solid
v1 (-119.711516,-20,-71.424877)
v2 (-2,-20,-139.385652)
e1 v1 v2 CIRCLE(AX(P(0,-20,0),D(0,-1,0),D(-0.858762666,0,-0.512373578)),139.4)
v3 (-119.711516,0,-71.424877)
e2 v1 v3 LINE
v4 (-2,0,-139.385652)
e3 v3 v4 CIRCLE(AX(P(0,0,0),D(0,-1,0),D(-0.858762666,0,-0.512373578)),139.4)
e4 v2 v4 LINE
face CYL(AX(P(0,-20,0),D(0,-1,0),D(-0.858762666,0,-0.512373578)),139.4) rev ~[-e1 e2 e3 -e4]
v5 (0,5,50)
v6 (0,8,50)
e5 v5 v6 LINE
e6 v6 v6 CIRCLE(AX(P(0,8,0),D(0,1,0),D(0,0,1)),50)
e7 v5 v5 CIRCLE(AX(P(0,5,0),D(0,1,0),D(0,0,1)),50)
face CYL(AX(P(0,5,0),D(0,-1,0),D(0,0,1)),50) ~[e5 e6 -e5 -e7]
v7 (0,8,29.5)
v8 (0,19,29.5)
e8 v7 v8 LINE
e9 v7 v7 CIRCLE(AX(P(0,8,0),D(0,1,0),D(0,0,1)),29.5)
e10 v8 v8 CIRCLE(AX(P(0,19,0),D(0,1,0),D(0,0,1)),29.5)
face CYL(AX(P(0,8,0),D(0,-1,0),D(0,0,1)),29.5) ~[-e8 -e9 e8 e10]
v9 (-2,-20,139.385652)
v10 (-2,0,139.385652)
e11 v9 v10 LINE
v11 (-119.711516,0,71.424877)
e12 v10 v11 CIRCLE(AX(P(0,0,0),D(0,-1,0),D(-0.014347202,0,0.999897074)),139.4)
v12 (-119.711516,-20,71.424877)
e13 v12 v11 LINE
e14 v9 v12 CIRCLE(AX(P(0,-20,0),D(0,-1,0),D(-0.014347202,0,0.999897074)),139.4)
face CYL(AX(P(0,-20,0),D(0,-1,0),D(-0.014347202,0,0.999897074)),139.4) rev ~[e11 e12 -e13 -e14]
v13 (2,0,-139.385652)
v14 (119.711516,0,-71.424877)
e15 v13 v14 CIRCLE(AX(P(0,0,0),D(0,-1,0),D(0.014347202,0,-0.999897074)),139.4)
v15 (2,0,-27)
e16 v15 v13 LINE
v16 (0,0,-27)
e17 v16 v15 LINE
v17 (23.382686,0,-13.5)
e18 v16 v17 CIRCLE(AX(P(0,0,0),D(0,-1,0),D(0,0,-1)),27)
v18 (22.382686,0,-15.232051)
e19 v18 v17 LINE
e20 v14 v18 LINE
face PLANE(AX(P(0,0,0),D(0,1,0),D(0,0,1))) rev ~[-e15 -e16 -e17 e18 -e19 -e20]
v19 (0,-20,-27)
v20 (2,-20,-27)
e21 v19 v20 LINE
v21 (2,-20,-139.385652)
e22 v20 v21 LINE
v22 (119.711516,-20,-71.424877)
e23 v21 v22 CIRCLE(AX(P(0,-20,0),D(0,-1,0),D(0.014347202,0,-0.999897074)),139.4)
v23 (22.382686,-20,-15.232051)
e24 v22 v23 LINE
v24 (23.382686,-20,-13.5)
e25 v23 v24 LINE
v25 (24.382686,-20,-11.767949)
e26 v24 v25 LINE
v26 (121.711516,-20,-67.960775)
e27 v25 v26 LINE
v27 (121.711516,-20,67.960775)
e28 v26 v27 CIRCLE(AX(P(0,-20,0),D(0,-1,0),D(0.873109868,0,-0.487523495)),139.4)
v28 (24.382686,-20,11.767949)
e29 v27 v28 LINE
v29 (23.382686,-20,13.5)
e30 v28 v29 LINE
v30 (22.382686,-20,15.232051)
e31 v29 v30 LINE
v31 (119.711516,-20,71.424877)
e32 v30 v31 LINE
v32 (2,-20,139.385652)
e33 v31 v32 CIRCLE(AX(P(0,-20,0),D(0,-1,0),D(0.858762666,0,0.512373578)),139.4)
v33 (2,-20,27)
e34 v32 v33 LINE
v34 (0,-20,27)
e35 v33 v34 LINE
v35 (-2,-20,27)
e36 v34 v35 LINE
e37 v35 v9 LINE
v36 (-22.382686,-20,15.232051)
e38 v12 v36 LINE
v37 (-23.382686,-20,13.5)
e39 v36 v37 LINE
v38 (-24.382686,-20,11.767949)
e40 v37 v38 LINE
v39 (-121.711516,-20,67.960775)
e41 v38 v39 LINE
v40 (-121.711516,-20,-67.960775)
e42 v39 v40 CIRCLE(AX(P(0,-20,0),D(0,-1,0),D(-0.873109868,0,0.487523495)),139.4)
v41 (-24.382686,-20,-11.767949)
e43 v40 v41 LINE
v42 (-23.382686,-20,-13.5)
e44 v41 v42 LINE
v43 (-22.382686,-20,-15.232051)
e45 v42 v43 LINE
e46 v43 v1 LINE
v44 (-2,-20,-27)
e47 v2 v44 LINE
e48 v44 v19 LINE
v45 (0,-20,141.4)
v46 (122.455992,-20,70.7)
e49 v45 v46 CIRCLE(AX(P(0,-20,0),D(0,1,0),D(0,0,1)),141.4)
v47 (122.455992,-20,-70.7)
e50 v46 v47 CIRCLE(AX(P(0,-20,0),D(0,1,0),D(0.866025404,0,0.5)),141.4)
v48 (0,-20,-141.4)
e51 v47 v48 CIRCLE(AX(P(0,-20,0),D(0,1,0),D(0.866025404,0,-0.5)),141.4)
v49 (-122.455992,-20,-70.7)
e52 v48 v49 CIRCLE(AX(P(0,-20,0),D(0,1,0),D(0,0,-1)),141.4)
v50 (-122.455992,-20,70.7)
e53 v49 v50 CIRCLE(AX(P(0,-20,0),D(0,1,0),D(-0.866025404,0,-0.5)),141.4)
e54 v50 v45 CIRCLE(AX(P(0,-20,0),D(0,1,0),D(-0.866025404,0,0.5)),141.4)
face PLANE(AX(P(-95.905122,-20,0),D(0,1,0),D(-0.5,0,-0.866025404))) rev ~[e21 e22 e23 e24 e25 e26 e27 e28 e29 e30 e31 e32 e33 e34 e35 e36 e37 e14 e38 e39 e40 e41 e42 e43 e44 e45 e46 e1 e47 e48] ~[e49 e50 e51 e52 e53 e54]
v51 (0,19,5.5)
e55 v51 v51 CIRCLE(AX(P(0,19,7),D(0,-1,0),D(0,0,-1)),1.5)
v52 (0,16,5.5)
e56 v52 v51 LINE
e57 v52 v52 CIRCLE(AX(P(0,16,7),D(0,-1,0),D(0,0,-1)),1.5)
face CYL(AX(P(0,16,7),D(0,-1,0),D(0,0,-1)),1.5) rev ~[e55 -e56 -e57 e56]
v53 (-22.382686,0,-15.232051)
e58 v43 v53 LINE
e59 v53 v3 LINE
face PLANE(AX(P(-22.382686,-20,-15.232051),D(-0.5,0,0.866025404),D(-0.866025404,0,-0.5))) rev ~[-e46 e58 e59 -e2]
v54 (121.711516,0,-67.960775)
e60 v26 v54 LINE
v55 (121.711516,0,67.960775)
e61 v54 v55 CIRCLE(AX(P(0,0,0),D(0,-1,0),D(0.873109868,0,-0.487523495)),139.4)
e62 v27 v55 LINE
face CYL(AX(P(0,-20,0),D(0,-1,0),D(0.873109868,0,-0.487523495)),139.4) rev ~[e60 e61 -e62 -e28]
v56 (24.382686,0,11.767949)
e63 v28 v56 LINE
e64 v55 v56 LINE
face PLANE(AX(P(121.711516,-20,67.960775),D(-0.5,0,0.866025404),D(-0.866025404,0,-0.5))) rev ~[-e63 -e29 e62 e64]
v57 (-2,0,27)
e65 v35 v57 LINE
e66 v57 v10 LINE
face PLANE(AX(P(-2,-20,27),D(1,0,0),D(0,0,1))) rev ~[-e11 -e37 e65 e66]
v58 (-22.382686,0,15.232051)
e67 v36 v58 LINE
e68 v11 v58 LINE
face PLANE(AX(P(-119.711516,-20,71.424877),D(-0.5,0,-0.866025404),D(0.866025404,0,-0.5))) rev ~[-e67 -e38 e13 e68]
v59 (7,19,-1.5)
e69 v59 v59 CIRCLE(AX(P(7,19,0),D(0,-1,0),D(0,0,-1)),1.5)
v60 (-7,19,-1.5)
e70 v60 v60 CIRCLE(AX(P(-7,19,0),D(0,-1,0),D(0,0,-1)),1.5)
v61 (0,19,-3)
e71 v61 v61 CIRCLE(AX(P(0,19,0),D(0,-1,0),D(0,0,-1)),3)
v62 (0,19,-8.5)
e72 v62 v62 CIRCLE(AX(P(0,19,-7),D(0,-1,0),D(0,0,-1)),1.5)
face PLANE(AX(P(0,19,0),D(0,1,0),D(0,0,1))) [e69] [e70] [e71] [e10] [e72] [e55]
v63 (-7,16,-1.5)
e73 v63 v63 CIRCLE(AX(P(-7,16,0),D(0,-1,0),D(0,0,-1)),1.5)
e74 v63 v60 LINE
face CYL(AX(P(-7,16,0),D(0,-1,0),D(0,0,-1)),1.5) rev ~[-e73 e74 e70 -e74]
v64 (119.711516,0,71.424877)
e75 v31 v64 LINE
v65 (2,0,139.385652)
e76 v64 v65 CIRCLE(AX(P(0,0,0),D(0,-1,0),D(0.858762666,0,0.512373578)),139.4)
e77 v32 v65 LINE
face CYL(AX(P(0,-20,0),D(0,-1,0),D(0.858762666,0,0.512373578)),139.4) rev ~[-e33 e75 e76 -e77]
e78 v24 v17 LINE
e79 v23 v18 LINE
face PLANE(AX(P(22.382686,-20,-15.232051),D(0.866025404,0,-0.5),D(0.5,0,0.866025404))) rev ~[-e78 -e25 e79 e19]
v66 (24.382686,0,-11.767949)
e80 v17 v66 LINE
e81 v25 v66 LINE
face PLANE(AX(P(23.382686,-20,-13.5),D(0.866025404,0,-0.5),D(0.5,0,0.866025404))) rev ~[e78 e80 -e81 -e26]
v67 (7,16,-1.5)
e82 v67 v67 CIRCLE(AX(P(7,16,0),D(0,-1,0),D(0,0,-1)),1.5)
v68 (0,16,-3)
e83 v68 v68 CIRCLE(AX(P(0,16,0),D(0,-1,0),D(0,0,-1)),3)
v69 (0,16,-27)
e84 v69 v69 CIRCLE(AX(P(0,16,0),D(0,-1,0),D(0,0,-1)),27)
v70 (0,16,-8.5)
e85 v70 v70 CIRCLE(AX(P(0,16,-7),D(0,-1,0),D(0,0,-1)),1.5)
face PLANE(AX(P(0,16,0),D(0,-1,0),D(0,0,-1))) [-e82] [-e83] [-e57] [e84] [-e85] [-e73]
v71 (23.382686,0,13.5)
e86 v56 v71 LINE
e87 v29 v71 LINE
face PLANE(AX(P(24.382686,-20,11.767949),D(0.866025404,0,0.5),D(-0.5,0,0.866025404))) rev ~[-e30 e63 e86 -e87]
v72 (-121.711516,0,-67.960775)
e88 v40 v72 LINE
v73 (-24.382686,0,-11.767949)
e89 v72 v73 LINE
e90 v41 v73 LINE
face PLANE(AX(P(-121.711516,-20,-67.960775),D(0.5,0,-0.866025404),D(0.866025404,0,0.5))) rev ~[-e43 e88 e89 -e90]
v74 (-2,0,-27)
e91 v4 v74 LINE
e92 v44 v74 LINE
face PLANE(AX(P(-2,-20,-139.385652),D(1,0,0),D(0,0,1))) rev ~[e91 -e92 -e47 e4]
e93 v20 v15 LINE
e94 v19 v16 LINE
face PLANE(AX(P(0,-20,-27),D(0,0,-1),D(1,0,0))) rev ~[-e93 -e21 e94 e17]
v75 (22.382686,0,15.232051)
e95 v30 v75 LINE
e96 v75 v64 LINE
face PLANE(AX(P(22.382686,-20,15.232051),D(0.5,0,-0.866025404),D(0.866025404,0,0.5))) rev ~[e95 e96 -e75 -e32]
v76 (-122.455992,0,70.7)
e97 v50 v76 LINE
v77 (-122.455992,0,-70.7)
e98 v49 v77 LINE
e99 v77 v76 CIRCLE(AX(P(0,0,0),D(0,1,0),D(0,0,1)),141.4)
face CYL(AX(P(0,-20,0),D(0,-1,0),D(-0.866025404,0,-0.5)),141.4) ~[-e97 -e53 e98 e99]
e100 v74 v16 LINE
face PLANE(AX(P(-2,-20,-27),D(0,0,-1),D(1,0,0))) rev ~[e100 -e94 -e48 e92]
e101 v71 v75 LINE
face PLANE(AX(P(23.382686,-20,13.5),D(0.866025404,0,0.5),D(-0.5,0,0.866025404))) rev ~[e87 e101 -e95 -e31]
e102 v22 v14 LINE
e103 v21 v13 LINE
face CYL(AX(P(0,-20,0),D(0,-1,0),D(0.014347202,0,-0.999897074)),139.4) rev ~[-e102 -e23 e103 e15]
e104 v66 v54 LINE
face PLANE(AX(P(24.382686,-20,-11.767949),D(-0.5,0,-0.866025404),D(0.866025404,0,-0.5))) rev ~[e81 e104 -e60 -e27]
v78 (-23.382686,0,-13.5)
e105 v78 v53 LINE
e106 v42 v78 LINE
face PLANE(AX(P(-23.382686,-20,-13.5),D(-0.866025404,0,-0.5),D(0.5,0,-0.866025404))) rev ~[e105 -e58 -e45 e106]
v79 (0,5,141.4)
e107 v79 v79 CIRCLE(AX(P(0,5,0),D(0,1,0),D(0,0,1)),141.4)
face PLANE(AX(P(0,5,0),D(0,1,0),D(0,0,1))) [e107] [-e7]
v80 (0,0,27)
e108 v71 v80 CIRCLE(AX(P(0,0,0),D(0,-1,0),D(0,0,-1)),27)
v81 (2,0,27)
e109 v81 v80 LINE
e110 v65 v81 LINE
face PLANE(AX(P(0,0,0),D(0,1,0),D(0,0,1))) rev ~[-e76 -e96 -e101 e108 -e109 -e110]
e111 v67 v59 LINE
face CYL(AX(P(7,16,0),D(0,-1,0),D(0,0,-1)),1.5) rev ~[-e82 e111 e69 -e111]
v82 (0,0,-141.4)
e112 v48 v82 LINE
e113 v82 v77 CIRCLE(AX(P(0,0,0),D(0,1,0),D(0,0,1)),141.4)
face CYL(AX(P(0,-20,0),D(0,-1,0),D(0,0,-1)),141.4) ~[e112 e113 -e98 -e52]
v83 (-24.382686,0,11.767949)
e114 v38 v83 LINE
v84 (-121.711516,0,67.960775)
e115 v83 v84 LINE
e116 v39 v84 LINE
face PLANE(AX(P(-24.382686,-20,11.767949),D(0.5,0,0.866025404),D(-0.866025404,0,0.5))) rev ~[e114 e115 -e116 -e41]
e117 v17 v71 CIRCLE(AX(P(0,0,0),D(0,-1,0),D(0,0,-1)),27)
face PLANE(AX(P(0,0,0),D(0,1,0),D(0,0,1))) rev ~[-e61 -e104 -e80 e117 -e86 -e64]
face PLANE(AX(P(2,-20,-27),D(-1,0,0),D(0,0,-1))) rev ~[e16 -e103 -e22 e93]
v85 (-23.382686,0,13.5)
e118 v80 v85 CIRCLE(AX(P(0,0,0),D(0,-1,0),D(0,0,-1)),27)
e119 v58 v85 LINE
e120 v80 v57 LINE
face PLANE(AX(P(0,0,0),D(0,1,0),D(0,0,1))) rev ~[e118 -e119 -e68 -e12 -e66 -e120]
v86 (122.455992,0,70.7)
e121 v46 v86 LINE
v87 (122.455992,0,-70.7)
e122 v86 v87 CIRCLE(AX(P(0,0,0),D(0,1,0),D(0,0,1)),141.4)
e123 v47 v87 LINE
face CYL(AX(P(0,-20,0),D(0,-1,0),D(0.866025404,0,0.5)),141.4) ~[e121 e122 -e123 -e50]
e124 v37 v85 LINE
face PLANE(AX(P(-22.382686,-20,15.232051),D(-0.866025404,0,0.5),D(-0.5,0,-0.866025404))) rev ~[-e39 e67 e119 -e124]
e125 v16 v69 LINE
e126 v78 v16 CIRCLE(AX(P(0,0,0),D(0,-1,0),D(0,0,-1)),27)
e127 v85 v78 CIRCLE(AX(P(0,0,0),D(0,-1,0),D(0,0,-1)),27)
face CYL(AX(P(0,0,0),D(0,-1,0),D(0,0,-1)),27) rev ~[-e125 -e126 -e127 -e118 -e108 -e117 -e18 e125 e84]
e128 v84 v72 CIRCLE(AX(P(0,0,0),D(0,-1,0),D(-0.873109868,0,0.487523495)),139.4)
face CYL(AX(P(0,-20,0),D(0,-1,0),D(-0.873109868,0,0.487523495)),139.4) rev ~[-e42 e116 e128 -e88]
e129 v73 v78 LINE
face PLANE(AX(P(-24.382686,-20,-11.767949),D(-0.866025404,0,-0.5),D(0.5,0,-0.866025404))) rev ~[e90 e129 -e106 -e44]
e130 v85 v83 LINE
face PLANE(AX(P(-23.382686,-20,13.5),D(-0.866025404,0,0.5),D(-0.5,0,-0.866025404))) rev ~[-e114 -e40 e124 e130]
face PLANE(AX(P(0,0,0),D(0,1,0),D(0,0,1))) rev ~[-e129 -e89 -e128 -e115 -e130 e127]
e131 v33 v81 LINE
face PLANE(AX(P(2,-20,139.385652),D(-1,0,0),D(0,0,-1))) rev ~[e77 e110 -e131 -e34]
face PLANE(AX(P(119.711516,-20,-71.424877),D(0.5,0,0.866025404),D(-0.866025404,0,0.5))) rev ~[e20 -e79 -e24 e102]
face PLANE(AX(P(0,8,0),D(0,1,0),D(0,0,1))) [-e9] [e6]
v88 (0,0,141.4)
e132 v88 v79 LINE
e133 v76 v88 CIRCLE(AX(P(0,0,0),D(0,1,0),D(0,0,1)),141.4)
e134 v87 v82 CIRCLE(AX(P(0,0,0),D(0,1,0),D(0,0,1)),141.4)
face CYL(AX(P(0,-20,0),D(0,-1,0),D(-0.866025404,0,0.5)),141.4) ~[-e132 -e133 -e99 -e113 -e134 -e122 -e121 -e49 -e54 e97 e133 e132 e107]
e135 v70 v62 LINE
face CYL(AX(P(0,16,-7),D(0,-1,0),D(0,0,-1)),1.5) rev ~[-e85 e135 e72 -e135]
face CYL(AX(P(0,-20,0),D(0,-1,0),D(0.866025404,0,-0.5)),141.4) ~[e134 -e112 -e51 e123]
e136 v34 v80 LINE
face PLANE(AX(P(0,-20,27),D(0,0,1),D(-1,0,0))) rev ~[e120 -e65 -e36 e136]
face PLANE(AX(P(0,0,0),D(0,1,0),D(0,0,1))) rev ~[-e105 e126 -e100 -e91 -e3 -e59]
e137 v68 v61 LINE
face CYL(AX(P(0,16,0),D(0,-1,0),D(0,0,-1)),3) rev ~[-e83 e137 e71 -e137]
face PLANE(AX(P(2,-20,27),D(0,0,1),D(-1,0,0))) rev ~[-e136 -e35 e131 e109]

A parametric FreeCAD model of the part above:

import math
import FreeCAD as App
import Part
import Sketcher

V = App.Vector
Q = App.Units.Quantity

doc = App.newDocument("Part")
body = doc.addObject("PartDesign::Body", "Body")

# Sketch on XZ plane
sketch1 = body.newObject("Sketcher::SketchObject", "Sketch")
sketch1.AttachmentSupport = (doc.getObject("XZ_Plane"), [""])
sketch1.MapMode = "FlatFace"
sketch1.addGeometry(Part.Circle(V(0, 0, 0), V(0, 0, 1), 141), False)
sketch1.addConstraint([
    Sketcher.Constraint("Coincident", 0, 3, -1, 1),
    Sketcher.Constraint("Diameter", 0, 282.8),
])
pad1 = body.newObject("PartDesign::Pad", "Pad")
pad1.Profile = sketch1
pad1.Length = 5
pad1.Reversed = True

# Sketch on XZ plane
sketch2 = body.newObject("Sketcher::SketchObject", "Sketch001")
sketch2.AttachmentSupport = (doc.getObject("XZ_Plane"), [""])
sketch2.MapMode = "FlatFace"
sketch2.AttachmentOffset = App.Placement(V(0, 0, -5), App.Rotation())
sketch2.addGeometry(Part.Circle(V(0, 0, 0), V(0, 0, 1), 50), False)
sketch2.addConstraint([
    Sketcher.Constraint("Coincident", 0, 3, -1, 1),
    Sketcher.Constraint("Diameter", 0, 100.0),
])
pad2 = body.newObject("PartDesign::Pad", "Pad001")
pad2.Profile = sketch2
pad2.Length = 3
pad2.Reversed = True

# Sketch on XZ plane
sketch3 = body.newObject("Sketcher::SketchObject", "Sketch002")
sketch3.AttachmentSupport = (doc.getObject("XZ_Plane"), [""])
sketch3.MapMode = "FlatFace"
sketch3.AttachmentOffset = App.Placement(V(0, 0, -8), App.Rotation())
sketch3.addGeometry(Part.Circle(V(0, 0, 0), V(0, 0, 1), 30), False)
sketch3.addConstraint([
    Sketcher.Constraint("Coincident", 0, 3, -1, 1),
    Sketcher.Constraint("Diameter", 0, 59.0),
])
pad3 = body.newObject("PartDesign::Pad", "Pad002")
pad3.Profile = sketch3
pad3.Length = 11
pad3.Reversed = True

# Sketch on XZ plane
sketch4 = body.newObject("Sketcher::SketchObject", "Sketch003")
sketch4.AttachmentSupport = (doc.getObject("XZ_Plane"), [""])
sketch4.MapMode = "FlatFace"
sketch4.addGeometry(Part.Circle(V(0, 0, 0), V(0, 0, 1), 27), False)
sketch4.addConstraint([
    Sketcher.Constraint("Coincident", 0, 3, -1, 1),
    Sketcher.Constraint("Diameter", 0, 54.0),
])
pocket1 = body.newObject("PartDesign::Pocket", "Pocket")
pocket1.Profile = sketch4
pocket1.Length = 16

# Sketch on XZ plane
sketch5 = body.newObject("Sketcher::SketchObject", "Sketch004")
sketch5.AttachmentSupport = (doc.getObject("XZ_Plane"), [""])
sketch5.MapMode = "FlatFace"
sketch5.AttachmentOffset = App.Placement(V(0, 0, -16), App.Rotation())
sketch5.addGeometry([
    Part.Circle(V(0, 0, 0), V(0, 0, 1), 3),  # 0
    Part.Circle(V(0, 7, 0), V(0, 0, 1), 1.5),  # 1
    Part.Circle(V(7, 0, 0), V(0, 0, 1), 1.5),  # 2
    Part.Circle(V(0, -7, 0), V(0, 0, 1), 1.5),  # 3
    Part.Circle(V(-7, 0, 0), V(0, 0, 1), 1.5),  # 4
], False)
sketch5.addConstraint([
    Sketcher.Constraint("Coincident", 0, 3, -1, 1),
    Sketcher.Constraint("Equal", 1, 2),
    Sketcher.Constraint("Equal", 2, 3),
    Sketcher.Constraint("Equal", 3, 4),
    Sketcher.Constraint("Symmetric", 1, 3, 3, 3, -1, 1),
    Sketcher.Constraint("Symmetric", 2, 3, 4, 3, -1, 1),
    Sketcher.Constraint("PointOnObject", 1, 3, -2),
    Sketcher.Constraint("PointOnObject", 2, 3, -1),
    Sketcher.Constraint("Diameter", 0, 6.0),
    Sketcher.Constraint("Diameter", 1, 3.0),
    Sketcher.Constraint("DistanceY", -1, 1, 1, 3, 7.0),
    Sketcher.Constraint("DistanceX", -1, 1, 2, 3, 7.0),
])
pocket2 = body.newObject("PartDesign::Pocket", "Pocket001")
pocket2.Profile = sketch5
pocket2.Type = "ThroughAll"

# Sketch on XZ plane
sketch6 = body.newObject("Sketcher::SketchObject", "Sketch005")
sketch6.AttachmentSupport = (doc.getObject("XZ_Plane"), [""])
sketch6.MapMode = "FlatFace"
sketch6.AttachmentOffset = App.Placement(V(0, 0, 20), App.Rotation())
sketch6.addGeometry([
    Part.LineSegment(V(-122.5, 70.7, 0), V(-23.4, 13.5, 0)),  # 0
    Part.LineSegment(V(-23.4, 13.5, 0), V(-22.4, 15.2, 0)),  # 1
    Part.LineSegment(V(-22.4, 15.2, 0), V(-119.7, 71.4, 0)),  # 2
    Part.ArcOfCircle(Part.Circle(V(0, 0, 0), V(0, 0, 1), 139.4), math.radians(91), math.radians(149)),  # 3
    Part.LineSegment(V(-2, 139.4, 0), V(-2, 27, 0)),  # 4
    Part.LineSegment(V(-2, 27, 0), V(0, 27, 0)),  # 5
    Part.LineSegment(V(0, 27, 0), V(0, 141.4, 0)),  # 6
    Part.ArcOfCircle(Part.Circle(V(0, 0, 0), V(0, 0, 1), 141.4), math.radians(90), math.radians(150)),  # 7
], False)
sketch6.addConstraint([
    Sketcher.Constraint("Coincident", 0, 2, 1, 1),
    Sketcher.Constraint("Coincident", 1, 2, 2, 1),
    Sketcher.Constraint("Coincident", 2, 2, 3, 2),
    Sketcher.Constraint("Coincident", 3, 1, 4, 1),
    Sketcher.Constraint("Coincident", 4, 2, 5, 1),
    Sketcher.Constraint("Coincident", 5, 2, 6, 1),
    Sketcher.Constraint("Coincident", 6, 2, 7, 1),
    Sketcher.Constraint("Coincident", 7, 2, 0, 1),
    Sketcher.Constraint("Vertical", 4),
    Sketcher.Constraint("Horizontal", 5),
    Sketcher.Constraint("Vertical", 6),
    Sketcher.Constraint("Coincident", 3, 3, -1, 1),
    Sketcher.Constraint("Coincident", 7, 3, -1, 1),
    Sketcher.Constraint("PointOnObject", 5, 2, -2),
    Sketcher.Constraint("Perpendicular", 0, 1),
    Sketcher.Constraint("Perpendicular", 1, 2),
    Sketcher.Constraint("Radius", 3, 139.4),
    Sketcher.Constraint("Radius", 7, 141.4),
    Sketcher.Constraint("DistanceX", 5, 1, 5, 2, 2.0),
    Sketcher.Constraint("Angle", 0, Q("-30 deg")),
    Sketcher.Constraint("Distance", 1, 2.0),
    Sketcher.Constraint("DistanceY", 6, 1, 6, 2, 114.4),
    Sketcher.Constraint("Distance", 0, 114.4),
    Sketcher.Constraint("DistanceY", -1, 1, 0, 2, 13.5),
])
pad4 = body.newObject("PartDesign::Pad", "Pad003")
pad4.Profile = sketch6
pad4.Length = 20
pad4.Reversed = True
doc.recompute()

polarpattern = body.newObject("PartDesign::PolarPattern", "PolarPattern")
polarpattern.Originals = [pad4]
polarpattern.Axis = (doc.getObject("Y_Axis"), [""])
polarpattern.Angle = 360
polarpattern.Occurrences = 6
body.Tip = polarpattern

doc.recompute()
